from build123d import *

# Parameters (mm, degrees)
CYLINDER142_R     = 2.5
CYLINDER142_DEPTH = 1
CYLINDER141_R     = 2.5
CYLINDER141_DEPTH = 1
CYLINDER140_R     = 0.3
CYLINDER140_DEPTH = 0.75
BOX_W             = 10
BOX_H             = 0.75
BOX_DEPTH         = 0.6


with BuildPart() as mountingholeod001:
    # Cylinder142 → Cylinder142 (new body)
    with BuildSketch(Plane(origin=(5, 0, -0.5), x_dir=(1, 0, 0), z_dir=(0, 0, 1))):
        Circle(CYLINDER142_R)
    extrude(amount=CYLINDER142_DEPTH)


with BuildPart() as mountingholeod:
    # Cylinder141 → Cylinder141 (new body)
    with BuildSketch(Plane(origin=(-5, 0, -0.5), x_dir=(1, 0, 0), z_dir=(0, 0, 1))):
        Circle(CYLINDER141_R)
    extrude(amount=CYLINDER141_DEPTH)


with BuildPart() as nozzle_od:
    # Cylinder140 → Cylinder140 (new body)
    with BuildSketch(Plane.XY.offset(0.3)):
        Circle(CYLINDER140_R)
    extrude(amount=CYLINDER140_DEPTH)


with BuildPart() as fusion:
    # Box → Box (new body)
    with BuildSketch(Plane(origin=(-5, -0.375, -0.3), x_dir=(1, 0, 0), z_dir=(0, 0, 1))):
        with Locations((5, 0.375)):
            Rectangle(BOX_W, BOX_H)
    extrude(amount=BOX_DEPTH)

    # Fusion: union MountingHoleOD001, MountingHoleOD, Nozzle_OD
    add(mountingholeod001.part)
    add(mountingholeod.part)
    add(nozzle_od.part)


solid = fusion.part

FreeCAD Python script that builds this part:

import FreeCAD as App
import Part
import Sketcher

V = App.Vector
Q = App.Units.Quantity

doc = App.newDocument("Part")
body = doc.addObject("PartDesign::Body", "Body")

# Sketch on XY plane
sketch1 = body.newObject("Sketcher::SketchObject", "Sketch")
sketch1.AttachmentSupport = (doc.getObject("XY_Plane"), [""])
sketch1.MapMode = "FlatFace"
sketch1.AttachmentOffset = App.Placement(V(0, 0, -0.5), App.Rotation())
sketch1.addGeometry(Part.Circle(V(5, 0, 0), V(0, 0, 1), 2.5), False)
sketch1.addConstraint([
    Sketcher.Constraint("PointOnObject", 0, 3, -1),
    Sketcher.Constraint("Diameter", 0, Q("5 mm")),
    Sketcher.Constraint("DistanceX", -1, 1, 0, 3, Q("5 mm")),
])
pad1 = body.newObject("PartDesign::Pad", "Pad")
pad1.Profile = sketch1
pad1.Length = 1
body2 = doc.addObject("PartDesign::Body", "Body001")

# Sketch on XY plane
sketch2 = body2.newObject("Sketcher::SketchObject", "Sketch001")
sketch2.AttachmentSupport = (doc.getObject("XY_Plane001"), [""])
sketch2.MapMode = "FlatFace"
sketch2.AttachmentOffset = App.Placement(V(0, 0, -0.5), App.Rotation())
sketch2.addGeometry(Part.Circle(V(-5, 0, 0), V(0, 0, 1), 2.5), False)
sketch2.addConstraint([
    Sketcher.Constraint("PointOnObject", 0, 3, -1),
    Sketcher.Constraint("Diameter", 0, Q("5 mm")),
    Sketcher.Constraint("DistanceX", 0, 3, -1, 1, Q("5 mm")),
])
pad2 = body2.newObject("PartDesign::Pad", "Pad001")
pad2.Profile = sketch2
pad2.Length = 1
body3 = doc.addObject("PartDesign::Body", "Body002")

# Sketch on XY plane
sketch3 = body3.newObject("Sketcher::SketchObject", "Sketch002")
sketch3.AttachmentSupport = (doc.getObject("XY_Plane002"), [""])
sketch3.MapMode = "FlatFace"
sketch3.AttachmentOffset = App.Placement(V(0, 0, 0.3), App.Rotation())
sketch3.addGeometry(Part.Circle(V(0, 0, 0), V(0, 0, 1), 0.3), False)
sketch3.addConstraint([
    Sketcher.Constraint("Coincident", 0, 3, -1, 1),
    Sketcher.Constraint("Diameter", 0, Q("0.6 mm")),
])
pad3 = body3.newObject("PartDesign::Pad", "Pad002")
pad3.Profile = sketch3
pad3.Length = 0.75
body4 = doc.addObject("PartDesign::Body", "Body003")

# Sketch on XY plane
sketch4 = body4.newObject("Sketcher::SketchObject", "Sketch003")
sketch4.AttachmentSupport = (doc.getObject("XY_Plane003"), [""])
sketch4.MapMode = "FlatFace"
sketch4.AttachmentOffset = App.Placement(V(0, 0, -0.3), App.Rotation())
sketch4.addGeometry([
    Part.LineSegment(V(-5, 0.4, 0), V(-5, -0.4, 0)),
    Part.LineSegment(V(-5, -0.4, 0), V(5, -0.4, 0)),
    Part.LineSegment(V(5, -0.4, 0), V(5, 0.4, 0)),
    Part.LineSegment(V(5, 0.4, 0), V(-5, 0.4, 0)),
], False)
sketch4.addConstraint([
    Sketcher.Constraint("Coincident", 0, 2, 1, 1),
    Sketcher.Constraint("Coincident", 1, 2, 2, 1),
    Sketcher.Constraint("Coincident", 2, 2, 3, 1),
    Sketcher.Constraint("Coincident", 3, 2, 0, 1),
    Sketcher.Constraint("Vertical", 0),
    Sketcher.Constraint("Horizontal", 1),
    Sketcher.Constraint("Vertical", 2),
    Sketcher.Constraint("Horizontal", 3),
    Sketcher.Constraint("Symmetric", 0, 2, 2, 2, -1, 1),
    Sketcher.Constraint("DistanceX", 1, 1, 1, 2, Q("10 mm")),
    Sketcher.Constraint("DistanceY", 0, 2, 0, 1, Q("0.75 mm")),
])
pad4 = body4.newObject("PartDesign::Pad", "Pad003")
pad4.Profile = sketch4
pad4.Length = 0.6
doc.recompute()

boolean = body4.newObject("PartDesign::Boolean", "Boolean")
boolean.Type = "Fuse"
boolean.addObjects([body])
doc.recompute()

boolean2 = body4.newObject("PartDesign::Boolean", "Boolean001")
boolean2.Type = "Fuse"
boolean2.addObjects([body2])
doc.recompute()

boolean3 = body4.newObject("PartDesign::Boolean", "Boolean002")
boolean3.Type = "Fuse"
boolean3.addObjects([body3])

doc.recompute()
